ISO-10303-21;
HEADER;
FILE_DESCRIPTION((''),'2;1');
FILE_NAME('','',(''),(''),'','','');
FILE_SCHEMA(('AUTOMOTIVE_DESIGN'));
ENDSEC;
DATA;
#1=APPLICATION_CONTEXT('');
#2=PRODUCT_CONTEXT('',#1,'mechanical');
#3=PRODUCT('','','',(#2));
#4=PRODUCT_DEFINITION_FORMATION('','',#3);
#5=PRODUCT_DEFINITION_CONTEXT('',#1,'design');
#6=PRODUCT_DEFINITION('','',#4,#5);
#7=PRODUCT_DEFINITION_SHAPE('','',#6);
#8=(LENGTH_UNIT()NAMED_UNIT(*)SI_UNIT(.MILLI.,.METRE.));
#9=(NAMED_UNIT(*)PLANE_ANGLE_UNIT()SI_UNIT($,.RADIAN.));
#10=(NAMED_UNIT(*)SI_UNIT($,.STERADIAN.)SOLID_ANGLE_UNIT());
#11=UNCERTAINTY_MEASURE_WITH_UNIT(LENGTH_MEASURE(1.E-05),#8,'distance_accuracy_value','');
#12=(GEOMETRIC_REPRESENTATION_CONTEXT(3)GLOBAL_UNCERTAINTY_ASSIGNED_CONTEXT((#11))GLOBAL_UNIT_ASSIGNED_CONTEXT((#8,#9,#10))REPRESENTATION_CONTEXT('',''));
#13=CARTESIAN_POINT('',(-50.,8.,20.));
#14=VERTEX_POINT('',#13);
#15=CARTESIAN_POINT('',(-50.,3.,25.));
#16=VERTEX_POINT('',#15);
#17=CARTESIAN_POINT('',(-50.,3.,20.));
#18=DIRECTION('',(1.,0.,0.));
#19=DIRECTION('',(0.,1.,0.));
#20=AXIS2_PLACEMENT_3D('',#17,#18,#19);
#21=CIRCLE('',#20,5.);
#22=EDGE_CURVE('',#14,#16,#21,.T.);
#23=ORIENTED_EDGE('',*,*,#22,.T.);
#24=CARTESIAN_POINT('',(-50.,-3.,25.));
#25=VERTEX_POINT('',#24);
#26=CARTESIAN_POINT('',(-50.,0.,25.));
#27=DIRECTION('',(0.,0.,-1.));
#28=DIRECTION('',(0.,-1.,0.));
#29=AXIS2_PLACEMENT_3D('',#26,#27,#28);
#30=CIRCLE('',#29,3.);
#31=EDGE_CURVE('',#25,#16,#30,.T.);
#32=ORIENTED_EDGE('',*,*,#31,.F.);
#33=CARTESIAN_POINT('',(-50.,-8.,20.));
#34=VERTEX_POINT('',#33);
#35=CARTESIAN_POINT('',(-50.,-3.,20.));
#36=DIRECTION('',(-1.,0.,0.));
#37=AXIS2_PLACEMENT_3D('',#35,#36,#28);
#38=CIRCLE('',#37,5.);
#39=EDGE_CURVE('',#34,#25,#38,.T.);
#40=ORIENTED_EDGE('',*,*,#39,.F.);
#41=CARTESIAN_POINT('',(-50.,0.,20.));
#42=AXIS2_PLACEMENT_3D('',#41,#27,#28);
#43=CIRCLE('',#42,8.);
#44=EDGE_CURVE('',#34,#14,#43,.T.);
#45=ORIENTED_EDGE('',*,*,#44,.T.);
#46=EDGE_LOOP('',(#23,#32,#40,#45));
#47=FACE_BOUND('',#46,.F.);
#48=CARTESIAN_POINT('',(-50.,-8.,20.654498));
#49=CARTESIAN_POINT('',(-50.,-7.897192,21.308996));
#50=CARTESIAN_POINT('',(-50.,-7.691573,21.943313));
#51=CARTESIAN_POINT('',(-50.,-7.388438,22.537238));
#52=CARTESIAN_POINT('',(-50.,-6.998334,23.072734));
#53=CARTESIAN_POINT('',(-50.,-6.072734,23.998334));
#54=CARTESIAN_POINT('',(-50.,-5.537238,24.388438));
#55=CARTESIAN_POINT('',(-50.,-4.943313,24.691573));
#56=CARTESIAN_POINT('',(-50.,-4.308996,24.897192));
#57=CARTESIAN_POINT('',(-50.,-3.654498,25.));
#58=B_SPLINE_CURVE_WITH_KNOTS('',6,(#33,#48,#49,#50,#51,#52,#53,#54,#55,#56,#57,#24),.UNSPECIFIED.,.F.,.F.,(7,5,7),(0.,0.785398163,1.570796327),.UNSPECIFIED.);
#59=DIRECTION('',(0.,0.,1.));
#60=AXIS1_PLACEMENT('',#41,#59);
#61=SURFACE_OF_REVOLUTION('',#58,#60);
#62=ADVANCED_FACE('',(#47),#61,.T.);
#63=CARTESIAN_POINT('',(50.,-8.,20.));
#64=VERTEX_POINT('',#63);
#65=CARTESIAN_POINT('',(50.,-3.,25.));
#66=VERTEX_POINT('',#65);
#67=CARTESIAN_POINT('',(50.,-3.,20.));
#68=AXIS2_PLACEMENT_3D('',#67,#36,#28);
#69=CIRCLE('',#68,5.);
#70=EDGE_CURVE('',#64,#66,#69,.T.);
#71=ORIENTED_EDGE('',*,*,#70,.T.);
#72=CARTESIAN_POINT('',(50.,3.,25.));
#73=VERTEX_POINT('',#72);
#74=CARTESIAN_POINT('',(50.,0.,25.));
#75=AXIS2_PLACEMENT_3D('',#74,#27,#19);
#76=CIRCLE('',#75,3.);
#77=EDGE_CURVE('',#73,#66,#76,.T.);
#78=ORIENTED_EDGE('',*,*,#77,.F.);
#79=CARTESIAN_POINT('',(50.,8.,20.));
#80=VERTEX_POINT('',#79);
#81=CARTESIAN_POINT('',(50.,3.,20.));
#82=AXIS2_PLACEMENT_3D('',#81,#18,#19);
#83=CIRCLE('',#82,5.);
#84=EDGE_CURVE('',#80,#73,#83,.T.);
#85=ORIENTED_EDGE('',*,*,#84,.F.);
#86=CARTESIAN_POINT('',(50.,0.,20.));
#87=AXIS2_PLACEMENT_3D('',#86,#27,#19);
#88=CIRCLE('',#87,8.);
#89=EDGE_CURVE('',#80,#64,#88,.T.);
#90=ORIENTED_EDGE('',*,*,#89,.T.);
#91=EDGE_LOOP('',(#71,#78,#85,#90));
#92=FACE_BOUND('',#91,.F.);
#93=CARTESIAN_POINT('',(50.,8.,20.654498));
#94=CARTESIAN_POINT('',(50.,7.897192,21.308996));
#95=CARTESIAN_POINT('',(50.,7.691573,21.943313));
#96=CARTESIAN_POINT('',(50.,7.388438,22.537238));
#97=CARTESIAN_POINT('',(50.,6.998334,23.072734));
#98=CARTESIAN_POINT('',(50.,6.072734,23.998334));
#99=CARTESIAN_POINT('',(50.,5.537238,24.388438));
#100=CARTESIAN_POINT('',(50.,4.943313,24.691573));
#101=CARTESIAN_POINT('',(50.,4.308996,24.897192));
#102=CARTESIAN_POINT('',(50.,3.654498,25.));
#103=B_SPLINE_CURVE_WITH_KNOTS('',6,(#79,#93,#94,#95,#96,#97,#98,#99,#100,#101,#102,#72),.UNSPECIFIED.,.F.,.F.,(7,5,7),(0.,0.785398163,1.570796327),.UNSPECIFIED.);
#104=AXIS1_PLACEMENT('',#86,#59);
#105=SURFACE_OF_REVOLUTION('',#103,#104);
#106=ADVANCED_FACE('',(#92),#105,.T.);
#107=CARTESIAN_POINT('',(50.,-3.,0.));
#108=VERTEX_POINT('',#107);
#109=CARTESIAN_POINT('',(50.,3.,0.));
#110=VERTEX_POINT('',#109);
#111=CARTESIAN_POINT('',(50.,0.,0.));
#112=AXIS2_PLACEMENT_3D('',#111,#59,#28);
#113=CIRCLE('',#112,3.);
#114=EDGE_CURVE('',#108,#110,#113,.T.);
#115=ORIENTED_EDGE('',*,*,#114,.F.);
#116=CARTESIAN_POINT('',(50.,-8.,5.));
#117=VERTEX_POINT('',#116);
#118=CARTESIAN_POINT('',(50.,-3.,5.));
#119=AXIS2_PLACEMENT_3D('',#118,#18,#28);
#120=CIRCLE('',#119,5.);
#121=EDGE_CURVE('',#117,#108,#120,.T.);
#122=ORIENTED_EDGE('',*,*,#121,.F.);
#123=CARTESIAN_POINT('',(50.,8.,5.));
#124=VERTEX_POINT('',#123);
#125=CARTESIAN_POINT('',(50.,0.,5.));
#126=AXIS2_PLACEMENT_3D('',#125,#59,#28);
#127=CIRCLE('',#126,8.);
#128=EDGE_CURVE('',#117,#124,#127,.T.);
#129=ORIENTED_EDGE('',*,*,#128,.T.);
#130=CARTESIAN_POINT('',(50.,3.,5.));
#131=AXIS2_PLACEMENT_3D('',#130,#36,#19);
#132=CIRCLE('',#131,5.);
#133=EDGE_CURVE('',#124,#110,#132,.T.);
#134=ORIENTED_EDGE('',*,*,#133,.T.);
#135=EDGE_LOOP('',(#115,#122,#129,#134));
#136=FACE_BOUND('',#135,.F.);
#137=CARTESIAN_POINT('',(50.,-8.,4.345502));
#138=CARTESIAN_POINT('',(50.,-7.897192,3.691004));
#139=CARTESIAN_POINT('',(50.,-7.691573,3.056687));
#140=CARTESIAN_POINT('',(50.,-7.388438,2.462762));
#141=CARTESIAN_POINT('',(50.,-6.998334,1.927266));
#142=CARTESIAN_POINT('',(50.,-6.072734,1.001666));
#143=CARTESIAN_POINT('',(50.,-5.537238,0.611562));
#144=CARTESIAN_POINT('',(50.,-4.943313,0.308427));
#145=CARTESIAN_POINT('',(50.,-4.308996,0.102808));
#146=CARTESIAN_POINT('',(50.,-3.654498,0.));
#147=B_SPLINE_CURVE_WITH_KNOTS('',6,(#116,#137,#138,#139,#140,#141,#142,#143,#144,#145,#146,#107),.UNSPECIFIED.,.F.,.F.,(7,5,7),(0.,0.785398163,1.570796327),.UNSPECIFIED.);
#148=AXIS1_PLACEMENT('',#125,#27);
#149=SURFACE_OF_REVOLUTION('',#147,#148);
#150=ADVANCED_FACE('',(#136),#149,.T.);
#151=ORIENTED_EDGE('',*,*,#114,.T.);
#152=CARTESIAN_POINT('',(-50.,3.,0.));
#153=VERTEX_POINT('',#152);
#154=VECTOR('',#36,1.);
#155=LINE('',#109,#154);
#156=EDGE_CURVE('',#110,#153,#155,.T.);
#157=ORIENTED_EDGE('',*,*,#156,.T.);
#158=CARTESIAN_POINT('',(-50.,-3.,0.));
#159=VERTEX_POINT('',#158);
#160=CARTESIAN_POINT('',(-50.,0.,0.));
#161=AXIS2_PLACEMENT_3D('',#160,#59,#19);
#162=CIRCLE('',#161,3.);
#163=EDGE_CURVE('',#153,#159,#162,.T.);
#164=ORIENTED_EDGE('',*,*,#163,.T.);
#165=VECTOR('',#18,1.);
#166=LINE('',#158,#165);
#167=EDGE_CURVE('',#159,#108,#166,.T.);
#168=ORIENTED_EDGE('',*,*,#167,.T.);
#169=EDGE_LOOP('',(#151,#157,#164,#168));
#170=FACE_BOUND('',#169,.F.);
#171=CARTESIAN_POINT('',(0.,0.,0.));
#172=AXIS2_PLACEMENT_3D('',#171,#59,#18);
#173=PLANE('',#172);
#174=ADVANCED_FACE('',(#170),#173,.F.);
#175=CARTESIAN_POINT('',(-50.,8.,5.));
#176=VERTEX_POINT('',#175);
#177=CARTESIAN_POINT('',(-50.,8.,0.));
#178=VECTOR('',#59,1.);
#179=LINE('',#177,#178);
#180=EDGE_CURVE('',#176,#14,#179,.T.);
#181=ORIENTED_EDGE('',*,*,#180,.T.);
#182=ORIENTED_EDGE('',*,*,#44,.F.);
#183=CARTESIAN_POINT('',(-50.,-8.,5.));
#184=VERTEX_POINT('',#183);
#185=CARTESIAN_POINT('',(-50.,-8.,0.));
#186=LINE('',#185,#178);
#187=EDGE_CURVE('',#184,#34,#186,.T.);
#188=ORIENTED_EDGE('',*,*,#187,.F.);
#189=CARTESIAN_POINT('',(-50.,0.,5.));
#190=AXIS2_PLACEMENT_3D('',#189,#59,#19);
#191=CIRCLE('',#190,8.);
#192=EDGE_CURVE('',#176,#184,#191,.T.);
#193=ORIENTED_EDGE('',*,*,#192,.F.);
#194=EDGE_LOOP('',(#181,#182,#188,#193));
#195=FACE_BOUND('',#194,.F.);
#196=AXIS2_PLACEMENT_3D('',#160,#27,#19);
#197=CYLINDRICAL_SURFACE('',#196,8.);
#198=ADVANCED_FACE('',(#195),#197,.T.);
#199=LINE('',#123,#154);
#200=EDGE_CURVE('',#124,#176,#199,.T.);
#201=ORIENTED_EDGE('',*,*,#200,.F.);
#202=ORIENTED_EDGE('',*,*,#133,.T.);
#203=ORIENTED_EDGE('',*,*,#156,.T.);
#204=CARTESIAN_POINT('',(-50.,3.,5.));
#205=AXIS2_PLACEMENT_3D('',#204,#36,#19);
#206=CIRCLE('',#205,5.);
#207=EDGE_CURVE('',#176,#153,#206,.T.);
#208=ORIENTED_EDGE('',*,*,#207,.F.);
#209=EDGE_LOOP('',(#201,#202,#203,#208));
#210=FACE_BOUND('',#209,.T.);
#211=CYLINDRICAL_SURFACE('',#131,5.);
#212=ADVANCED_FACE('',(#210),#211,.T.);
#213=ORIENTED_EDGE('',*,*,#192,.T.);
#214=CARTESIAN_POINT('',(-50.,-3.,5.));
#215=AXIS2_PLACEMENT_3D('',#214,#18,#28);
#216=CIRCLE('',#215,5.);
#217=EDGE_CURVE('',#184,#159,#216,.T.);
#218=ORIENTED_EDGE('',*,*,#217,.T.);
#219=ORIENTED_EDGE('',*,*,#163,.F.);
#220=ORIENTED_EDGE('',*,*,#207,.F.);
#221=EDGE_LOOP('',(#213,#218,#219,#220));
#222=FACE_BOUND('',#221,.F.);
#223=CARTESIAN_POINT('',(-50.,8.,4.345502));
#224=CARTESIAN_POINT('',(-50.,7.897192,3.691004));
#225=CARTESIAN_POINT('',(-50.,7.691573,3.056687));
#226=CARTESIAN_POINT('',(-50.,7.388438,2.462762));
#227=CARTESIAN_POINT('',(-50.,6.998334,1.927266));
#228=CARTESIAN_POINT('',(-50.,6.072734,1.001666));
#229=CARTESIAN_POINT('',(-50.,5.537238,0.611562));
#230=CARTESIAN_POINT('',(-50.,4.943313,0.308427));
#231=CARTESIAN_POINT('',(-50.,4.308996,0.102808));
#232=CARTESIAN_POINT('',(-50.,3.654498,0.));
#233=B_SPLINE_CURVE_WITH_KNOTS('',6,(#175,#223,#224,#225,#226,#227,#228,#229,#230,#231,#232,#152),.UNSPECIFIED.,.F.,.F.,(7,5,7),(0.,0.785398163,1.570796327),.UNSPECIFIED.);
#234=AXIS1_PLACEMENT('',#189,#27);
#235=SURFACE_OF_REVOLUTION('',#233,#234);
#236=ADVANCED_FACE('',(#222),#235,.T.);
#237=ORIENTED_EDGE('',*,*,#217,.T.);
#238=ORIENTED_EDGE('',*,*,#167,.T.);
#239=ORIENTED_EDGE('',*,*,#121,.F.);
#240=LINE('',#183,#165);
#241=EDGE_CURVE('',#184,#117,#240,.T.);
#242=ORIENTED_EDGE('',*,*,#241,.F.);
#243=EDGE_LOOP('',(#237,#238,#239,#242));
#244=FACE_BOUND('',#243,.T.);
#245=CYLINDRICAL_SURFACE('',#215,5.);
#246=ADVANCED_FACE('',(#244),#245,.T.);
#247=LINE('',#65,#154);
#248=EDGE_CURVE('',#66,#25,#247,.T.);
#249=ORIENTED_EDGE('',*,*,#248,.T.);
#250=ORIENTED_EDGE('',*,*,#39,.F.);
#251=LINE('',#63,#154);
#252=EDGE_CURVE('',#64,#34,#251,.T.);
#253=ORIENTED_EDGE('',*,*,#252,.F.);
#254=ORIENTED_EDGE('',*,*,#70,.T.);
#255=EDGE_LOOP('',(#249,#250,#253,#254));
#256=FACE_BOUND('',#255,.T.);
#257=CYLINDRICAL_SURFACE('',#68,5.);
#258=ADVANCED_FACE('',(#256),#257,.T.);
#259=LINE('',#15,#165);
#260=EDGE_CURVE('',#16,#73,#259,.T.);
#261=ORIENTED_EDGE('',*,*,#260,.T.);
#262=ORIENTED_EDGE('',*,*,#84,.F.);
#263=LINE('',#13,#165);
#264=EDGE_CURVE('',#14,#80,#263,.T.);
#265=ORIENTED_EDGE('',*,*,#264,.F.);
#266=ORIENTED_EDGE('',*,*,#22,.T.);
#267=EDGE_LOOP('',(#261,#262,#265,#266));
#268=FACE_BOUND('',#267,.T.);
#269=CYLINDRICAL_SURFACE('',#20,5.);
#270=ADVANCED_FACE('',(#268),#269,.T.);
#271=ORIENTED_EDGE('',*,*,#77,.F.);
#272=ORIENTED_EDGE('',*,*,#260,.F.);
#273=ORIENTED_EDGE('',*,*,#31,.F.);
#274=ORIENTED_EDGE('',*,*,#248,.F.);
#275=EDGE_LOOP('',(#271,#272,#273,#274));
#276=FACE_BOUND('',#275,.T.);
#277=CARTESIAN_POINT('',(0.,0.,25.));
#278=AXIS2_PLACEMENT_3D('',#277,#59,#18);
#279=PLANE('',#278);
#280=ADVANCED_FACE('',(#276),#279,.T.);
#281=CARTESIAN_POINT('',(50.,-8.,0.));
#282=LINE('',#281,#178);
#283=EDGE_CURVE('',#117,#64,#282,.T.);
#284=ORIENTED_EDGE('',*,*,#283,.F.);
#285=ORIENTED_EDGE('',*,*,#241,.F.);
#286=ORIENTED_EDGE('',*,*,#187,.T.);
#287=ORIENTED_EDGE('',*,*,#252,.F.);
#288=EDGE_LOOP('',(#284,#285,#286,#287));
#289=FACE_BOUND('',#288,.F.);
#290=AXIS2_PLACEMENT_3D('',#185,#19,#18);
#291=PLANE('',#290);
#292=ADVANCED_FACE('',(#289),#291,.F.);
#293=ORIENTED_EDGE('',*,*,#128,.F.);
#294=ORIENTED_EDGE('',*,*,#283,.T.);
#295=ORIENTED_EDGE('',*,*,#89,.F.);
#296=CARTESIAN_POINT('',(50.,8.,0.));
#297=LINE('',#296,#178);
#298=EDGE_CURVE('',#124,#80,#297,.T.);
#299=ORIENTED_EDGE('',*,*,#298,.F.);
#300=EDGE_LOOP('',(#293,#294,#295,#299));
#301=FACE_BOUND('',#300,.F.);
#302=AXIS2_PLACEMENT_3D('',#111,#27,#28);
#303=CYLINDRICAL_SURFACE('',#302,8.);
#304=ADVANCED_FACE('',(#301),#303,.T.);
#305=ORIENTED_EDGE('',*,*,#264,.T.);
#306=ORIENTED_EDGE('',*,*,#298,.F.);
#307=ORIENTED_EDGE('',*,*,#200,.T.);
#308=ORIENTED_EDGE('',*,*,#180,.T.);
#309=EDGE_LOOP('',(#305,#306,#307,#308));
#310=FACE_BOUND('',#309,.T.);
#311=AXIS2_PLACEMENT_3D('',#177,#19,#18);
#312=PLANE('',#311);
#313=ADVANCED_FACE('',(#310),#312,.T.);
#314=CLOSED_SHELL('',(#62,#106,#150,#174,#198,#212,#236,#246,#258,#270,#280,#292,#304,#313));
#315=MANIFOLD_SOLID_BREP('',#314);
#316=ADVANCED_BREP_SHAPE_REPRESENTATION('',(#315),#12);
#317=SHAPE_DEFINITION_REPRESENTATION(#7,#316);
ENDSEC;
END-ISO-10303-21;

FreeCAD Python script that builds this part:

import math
import FreeCAD as App
import Part
import Sketcher
from FreeCAD import Vector


def edges_at(feature, points):
    """Names of the edges that pass closest to the given points."""
    edges = feature.Shape.Edges
    near = lambda p: min(range(len(edges)), key=lambda i: edges[i].distToShape(Part.Vertex(*p))[0])
    return sorted({f"Edge{near(p) + 1}" for p in points})

doc = App.newDocument("Part")
params = doc.addObject("Spreadsheet::Sheet", "Params")
for row, (alias, value) in enumerate([
    ("sketch1_radius", "8 mm"),
    ("sketch1_width", "100 mm"),
    ("pad1_length", "25 mm"),
    ("fillet_radius", "5 mm"),
], start=1):
    params.set(f"A{row}", alias)
    params.set(f"B{row}", "=" + value)
    params.setAlias(f"B{row}", alias)

body = doc.addObject("PartDesign::Body", "Body")

# Sketch on XY plane
sketch1 = body.newObject("Sketcher::SketchObject", "Sketch")
sketch1.AttachmentSupport = (doc.getObject("XY_Plane"), [""])
sketch1.MapMode = "FlatFace"
sketch1.addGeometry([
    Part.LineSegment(Vector(-50, -8, 0), Vector(50, -8, 0)),
    Part.ArcOfCircle(Part.Circle(Vector(50, 0, 0), Vector(0, 0, 1), 8), math.radians(-90), math.radians(90)),
    Part.LineSegment(Vector(50, 8, 0), Vector(-50, 8, 0)),
    Part.ArcOfCircle(Part.Circle(Vector(-50, 0, 0), Vector(0, 0, 1), 8), math.radians(90), math.radians(270)),
], False)
sketch1.addConstraint([
    Sketcher.Constraint("Tangent", 0, 2, 1, 1),
    Sketcher.Constraint("Tangent", 1, 2, 2, 1),
    Sketcher.Constraint("Tangent", 2, 2, 3, 1),
    Sketcher.Constraint("Tangent", 3, 2, 0, 1),
    Sketcher.Constraint("Horizontal", 0),
    Sketcher.Constraint("Horizontal", 2),
    Sketcher.Constraint("Symmetric", 1, 3, 3, 3, -1, 1),
    Sketcher.Constraint("Radius", 1, 8.0),
    Sketcher.Constraint("DistanceX", 0, 1, 0, 2, 100.0),
])
sketch1.setExpression("Constraints[7]", "Params.sketch1_radius")
sketch1.setExpression("Constraints[8]", "Params.sketch1_width")
pad1 = body.newObject("PartDesign::Pad", "Pad")
pad1.Profile = sketch1
pad1.setExpression("Length", "Params.pad1_length")
doc.recompute()

fillet = body.newObject("PartDesign::Fillet", "Fillet")
fillet.Base = (pad1, edges_at(pad1, [
    (0, 8, 25),
    (0, -8, 25),
    (-58, 0, 25),
    (58, 0, 25),
    (0, -8, 0),
]))
fillet.setExpression("Radius", "Params.fillet_radius")

doc.recompute()
